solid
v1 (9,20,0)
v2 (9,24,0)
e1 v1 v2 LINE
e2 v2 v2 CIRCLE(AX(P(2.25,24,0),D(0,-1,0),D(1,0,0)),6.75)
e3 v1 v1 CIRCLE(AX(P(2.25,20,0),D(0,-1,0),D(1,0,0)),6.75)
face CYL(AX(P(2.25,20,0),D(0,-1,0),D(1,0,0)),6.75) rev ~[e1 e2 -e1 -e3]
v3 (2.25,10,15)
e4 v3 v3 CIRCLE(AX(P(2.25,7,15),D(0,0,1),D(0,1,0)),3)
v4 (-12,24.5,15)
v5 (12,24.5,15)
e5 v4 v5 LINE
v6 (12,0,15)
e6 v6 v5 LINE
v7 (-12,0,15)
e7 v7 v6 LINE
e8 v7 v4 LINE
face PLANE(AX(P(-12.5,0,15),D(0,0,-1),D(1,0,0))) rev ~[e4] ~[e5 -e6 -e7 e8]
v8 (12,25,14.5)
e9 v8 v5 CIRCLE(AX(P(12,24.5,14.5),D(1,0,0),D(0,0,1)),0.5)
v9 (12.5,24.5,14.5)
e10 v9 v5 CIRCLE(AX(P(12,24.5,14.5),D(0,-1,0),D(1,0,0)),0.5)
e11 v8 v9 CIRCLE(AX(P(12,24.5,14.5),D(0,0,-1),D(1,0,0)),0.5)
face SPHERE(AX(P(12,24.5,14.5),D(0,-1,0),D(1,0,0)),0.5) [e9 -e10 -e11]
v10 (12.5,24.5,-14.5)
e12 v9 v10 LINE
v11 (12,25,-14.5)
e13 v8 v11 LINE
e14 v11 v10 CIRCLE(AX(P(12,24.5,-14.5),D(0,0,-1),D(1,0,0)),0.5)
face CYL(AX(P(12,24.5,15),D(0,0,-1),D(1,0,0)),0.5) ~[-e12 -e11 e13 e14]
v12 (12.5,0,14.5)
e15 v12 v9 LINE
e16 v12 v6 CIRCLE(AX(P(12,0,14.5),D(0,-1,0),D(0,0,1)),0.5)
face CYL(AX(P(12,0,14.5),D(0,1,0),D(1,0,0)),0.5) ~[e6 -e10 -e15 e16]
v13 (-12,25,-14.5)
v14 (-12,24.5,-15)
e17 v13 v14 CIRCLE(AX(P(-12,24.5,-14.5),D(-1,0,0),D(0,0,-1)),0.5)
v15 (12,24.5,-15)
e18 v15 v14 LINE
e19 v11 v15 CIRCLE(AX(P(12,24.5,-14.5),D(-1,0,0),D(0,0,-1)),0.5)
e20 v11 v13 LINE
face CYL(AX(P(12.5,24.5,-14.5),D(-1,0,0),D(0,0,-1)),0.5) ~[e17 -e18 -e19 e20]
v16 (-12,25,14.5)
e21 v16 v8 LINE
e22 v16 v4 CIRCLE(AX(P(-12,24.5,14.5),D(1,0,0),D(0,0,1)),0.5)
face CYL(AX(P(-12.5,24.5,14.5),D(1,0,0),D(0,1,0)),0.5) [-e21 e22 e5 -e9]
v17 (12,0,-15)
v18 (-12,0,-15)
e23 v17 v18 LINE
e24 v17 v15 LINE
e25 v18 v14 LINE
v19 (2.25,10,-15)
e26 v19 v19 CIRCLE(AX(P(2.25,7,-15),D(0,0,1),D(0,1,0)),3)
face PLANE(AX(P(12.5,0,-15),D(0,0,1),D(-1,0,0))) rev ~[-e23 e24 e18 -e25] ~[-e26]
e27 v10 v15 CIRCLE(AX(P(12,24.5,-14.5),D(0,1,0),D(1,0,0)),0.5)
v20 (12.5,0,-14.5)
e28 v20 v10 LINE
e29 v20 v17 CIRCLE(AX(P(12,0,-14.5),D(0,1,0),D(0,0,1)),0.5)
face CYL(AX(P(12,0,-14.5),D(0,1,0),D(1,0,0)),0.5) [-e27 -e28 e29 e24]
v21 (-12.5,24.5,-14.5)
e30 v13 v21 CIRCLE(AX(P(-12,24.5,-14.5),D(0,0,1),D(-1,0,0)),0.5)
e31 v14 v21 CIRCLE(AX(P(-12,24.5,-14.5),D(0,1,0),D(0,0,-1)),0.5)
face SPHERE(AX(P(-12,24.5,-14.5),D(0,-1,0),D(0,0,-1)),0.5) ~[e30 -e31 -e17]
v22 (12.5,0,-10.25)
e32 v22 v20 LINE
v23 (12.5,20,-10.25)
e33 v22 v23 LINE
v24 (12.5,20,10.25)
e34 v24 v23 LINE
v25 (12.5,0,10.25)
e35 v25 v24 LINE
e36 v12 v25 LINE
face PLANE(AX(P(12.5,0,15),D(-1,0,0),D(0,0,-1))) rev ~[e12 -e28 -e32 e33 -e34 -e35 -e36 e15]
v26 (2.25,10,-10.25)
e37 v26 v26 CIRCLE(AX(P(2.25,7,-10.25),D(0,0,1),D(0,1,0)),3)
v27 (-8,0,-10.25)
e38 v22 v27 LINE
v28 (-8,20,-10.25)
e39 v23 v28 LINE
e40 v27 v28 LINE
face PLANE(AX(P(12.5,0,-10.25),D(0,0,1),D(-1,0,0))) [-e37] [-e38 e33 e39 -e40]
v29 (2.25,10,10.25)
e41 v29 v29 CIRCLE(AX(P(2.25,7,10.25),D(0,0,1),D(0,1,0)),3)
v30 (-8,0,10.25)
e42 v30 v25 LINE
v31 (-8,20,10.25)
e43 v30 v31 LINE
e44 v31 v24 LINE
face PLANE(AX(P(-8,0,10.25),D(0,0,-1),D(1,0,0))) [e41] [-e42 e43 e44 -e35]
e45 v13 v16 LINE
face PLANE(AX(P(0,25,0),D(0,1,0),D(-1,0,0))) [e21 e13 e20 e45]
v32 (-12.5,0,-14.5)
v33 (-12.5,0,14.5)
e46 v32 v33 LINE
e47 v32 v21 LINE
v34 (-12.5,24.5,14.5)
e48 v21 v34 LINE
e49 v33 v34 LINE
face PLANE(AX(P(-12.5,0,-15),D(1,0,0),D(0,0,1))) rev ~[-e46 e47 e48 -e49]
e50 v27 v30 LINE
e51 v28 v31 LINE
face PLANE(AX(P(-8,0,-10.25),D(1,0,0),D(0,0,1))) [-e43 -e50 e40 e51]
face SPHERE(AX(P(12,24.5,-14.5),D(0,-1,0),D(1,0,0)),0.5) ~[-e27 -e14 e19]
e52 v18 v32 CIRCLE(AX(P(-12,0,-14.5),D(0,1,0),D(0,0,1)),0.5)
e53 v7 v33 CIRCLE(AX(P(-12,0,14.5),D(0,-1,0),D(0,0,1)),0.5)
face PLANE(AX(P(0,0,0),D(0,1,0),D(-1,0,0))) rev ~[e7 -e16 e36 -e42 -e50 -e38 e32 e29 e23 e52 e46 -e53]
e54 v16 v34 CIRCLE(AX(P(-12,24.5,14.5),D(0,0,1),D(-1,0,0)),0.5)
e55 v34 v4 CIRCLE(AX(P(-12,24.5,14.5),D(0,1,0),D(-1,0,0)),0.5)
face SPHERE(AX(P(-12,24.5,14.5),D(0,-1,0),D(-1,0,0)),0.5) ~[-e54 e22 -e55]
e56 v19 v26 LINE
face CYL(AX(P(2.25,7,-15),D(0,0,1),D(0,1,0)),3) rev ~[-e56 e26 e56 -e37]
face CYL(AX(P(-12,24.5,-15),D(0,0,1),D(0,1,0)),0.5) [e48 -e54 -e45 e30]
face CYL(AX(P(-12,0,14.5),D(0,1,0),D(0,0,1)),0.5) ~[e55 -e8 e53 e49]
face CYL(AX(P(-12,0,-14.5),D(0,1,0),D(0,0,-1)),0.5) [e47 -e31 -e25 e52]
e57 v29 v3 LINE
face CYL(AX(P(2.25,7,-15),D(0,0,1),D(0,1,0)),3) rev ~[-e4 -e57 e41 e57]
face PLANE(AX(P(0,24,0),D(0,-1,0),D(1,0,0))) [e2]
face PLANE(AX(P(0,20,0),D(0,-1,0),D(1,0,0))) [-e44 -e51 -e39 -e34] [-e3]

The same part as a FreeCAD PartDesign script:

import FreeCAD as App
import Part
import Sketcher

V = App.Vector


def edges_at(feature, points):
    """Names of the edges that pass closest to the given points."""
    edges = feature.Shape.Edges
    near = lambda p: min(range(len(edges)), key=lambda i: edges[i].distToShape(Part.Vertex(*p))[0])
    return sorted({f"Edge{near(p) + 1}" for p in points})


def add_polygon(sketch, points):
    """Adds a closed chain of lines whose ends are joined by coincident constraints."""
    first, n = sketch.GeometryCount, len(points)
    for a, b in zip(points, points[1:] + points[:1]):
        sketch.addGeometry(Part.LineSegment(App.Vector(*a, 0), App.Vector(*b, 0)), False)
    for i in range(n):
        sketch.addConstraint(Sketcher.Constraint("Coincident", first + i, 2, first + (i + 1) % n, 1))

doc = App.newDocument("Part")
body = doc.addObject("PartDesign::Body", "Body")

# Sketch on XZ plane
sketch1 = body.newObject("Sketcher::SketchObject", "Sketch")
sketch1.AttachmentSupport = (doc.getObject("XZ_Plane"), [""])
sketch1.MapMode = "FlatFace"
add_polygon(sketch1, [(12, 15), (12, -15), (-12, -15), (-12, 15)])  # lines 0-3
sketch1.addConstraint([
    Sketcher.Constraint("Vertical", 0),
    Sketcher.Constraint("Horizontal", 1),
    Sketcher.Constraint("Vertical", 2),
    Sketcher.Constraint("Horizontal", 3),
    Sketcher.Constraint("Symmetric", 0, 2, 2, 2, -1, 1),
    Sketcher.Constraint("DistanceX", 1, 2, 1, 1, 25.0),
    Sketcher.Constraint("DistanceY", 0, 2, 0, 1, 30.0),
])
pad1 = body.newObject("PartDesign::Pad", "Pad")
pad1.Profile = sketch1
pad1.Length = 25
pad1.Reversed = True

# Sketch on XZ plane
sketch2 = body.newObject("Sketcher::SketchObject", "Sketch001")
sketch2.AttachmentSupport = (doc.getObject("XZ_Plane"), [""])
sketch2.MapMode = "FlatFace"
add_polygon(sketch2, [(12, -10), (12, 10), (-8, 10), (-8, -10)])  # lines 0-3
sketch2.addConstraint([
    Sketcher.Constraint("Vertical", 0),
    Sketcher.Constraint("Horizontal", 1),
    Sketcher.Constraint("Vertical", 2),
    Sketcher.Constraint("Horizontal", 3),
    Sketcher.Constraint("Equal", 3, 0),
    Sketcher.Constraint("DistanceX", 1, 2, 1, 1, 20.5),
    Sketcher.Constraint("DistanceY", -1, 1, 0, 2, 10.25),
    Sketcher.Constraint("DistanceX", 1, 2, -1, 1, 8.0),
])
pocket1 = body.newObject("PartDesign::Pocket", "Pocket")
pocket1.Profile = sketch2
pocket1.Length = 20

# Sketch on XY plane
sketch3 = body.newObject("Sketcher::SketchObject", "Sketch002")
sketch3.AttachmentSupport = (doc.getObject("XY_Plane"), [""])
sketch3.MapMode = "FlatFace"
sketch3.AttachmentOffset = App.Placement(V(0, 0, -15), App.Rotation())
sketch3.addGeometry(Part.Circle(V(2.2, 7, 0), V(0, 0, 1), 3), False)
sketch3.addConstraint([
    Sketcher.Constraint("Diameter", 0, 6.0),
    Sketcher.Constraint("DistanceY", -1, 1, 0, 3, 7.0),
    Sketcher.Constraint("DistanceX", -1, 1, 0, 3, 2.25),
])
doc.recompute()
hole = body.newObject("PartDesign::Hole", "Hole")
hole.Profile = sketch3
hole.ThreadType = "None"
hole.Diameter = 6
hole.DepthType = "ThroughAll"
hole.Reversed = True
doc.recompute()

fillet = body.newObject("PartDesign::Fillet", "Fillet")
fillet.Base = (hole, edges_at(hole, [
    (12.5, 12.5, -15),
    (-12.5, 12.5, -15),
    (-12.5, 12.5, 15),
    (12.5, 12.5, 15),
    (12.5, 25, 0),
    (0, 25, -15),
    (-12.5, 25, 0),
    (0, 25, 15),
]))
fillet.Radius = 0.5

# Sketch on XZ plane
sketch4 = body.newObject("Sketcher::SketchObject", "Sketch003")
sketch4.AttachmentSupport = (doc.getObject("XZ_Plane"), [""])
sketch4.MapMode = "FlatFace"
sketch4.AttachmentOffset = App.Placement(V(0, 0, -20), App.Rotation())
sketch4.addGeometry(Part.Circle(V(2, 0, 0), V(0, 0, 1), 7), False)
sketch4.addConstraint([
    Sketcher.Constraint("PointOnObject", 0, 3, -1),
    Sketcher.Constraint("Diameter", 0, 13.5),
    Sketcher.Constraint("DistanceX", -1, 1, 0, 3, 2.25),
])
pocket2 = body.newObject("PartDesign::Pocket", "Pocket001")
pocket2.Profile = sketch4
pocket2.Length = 4

doc.recompute()
